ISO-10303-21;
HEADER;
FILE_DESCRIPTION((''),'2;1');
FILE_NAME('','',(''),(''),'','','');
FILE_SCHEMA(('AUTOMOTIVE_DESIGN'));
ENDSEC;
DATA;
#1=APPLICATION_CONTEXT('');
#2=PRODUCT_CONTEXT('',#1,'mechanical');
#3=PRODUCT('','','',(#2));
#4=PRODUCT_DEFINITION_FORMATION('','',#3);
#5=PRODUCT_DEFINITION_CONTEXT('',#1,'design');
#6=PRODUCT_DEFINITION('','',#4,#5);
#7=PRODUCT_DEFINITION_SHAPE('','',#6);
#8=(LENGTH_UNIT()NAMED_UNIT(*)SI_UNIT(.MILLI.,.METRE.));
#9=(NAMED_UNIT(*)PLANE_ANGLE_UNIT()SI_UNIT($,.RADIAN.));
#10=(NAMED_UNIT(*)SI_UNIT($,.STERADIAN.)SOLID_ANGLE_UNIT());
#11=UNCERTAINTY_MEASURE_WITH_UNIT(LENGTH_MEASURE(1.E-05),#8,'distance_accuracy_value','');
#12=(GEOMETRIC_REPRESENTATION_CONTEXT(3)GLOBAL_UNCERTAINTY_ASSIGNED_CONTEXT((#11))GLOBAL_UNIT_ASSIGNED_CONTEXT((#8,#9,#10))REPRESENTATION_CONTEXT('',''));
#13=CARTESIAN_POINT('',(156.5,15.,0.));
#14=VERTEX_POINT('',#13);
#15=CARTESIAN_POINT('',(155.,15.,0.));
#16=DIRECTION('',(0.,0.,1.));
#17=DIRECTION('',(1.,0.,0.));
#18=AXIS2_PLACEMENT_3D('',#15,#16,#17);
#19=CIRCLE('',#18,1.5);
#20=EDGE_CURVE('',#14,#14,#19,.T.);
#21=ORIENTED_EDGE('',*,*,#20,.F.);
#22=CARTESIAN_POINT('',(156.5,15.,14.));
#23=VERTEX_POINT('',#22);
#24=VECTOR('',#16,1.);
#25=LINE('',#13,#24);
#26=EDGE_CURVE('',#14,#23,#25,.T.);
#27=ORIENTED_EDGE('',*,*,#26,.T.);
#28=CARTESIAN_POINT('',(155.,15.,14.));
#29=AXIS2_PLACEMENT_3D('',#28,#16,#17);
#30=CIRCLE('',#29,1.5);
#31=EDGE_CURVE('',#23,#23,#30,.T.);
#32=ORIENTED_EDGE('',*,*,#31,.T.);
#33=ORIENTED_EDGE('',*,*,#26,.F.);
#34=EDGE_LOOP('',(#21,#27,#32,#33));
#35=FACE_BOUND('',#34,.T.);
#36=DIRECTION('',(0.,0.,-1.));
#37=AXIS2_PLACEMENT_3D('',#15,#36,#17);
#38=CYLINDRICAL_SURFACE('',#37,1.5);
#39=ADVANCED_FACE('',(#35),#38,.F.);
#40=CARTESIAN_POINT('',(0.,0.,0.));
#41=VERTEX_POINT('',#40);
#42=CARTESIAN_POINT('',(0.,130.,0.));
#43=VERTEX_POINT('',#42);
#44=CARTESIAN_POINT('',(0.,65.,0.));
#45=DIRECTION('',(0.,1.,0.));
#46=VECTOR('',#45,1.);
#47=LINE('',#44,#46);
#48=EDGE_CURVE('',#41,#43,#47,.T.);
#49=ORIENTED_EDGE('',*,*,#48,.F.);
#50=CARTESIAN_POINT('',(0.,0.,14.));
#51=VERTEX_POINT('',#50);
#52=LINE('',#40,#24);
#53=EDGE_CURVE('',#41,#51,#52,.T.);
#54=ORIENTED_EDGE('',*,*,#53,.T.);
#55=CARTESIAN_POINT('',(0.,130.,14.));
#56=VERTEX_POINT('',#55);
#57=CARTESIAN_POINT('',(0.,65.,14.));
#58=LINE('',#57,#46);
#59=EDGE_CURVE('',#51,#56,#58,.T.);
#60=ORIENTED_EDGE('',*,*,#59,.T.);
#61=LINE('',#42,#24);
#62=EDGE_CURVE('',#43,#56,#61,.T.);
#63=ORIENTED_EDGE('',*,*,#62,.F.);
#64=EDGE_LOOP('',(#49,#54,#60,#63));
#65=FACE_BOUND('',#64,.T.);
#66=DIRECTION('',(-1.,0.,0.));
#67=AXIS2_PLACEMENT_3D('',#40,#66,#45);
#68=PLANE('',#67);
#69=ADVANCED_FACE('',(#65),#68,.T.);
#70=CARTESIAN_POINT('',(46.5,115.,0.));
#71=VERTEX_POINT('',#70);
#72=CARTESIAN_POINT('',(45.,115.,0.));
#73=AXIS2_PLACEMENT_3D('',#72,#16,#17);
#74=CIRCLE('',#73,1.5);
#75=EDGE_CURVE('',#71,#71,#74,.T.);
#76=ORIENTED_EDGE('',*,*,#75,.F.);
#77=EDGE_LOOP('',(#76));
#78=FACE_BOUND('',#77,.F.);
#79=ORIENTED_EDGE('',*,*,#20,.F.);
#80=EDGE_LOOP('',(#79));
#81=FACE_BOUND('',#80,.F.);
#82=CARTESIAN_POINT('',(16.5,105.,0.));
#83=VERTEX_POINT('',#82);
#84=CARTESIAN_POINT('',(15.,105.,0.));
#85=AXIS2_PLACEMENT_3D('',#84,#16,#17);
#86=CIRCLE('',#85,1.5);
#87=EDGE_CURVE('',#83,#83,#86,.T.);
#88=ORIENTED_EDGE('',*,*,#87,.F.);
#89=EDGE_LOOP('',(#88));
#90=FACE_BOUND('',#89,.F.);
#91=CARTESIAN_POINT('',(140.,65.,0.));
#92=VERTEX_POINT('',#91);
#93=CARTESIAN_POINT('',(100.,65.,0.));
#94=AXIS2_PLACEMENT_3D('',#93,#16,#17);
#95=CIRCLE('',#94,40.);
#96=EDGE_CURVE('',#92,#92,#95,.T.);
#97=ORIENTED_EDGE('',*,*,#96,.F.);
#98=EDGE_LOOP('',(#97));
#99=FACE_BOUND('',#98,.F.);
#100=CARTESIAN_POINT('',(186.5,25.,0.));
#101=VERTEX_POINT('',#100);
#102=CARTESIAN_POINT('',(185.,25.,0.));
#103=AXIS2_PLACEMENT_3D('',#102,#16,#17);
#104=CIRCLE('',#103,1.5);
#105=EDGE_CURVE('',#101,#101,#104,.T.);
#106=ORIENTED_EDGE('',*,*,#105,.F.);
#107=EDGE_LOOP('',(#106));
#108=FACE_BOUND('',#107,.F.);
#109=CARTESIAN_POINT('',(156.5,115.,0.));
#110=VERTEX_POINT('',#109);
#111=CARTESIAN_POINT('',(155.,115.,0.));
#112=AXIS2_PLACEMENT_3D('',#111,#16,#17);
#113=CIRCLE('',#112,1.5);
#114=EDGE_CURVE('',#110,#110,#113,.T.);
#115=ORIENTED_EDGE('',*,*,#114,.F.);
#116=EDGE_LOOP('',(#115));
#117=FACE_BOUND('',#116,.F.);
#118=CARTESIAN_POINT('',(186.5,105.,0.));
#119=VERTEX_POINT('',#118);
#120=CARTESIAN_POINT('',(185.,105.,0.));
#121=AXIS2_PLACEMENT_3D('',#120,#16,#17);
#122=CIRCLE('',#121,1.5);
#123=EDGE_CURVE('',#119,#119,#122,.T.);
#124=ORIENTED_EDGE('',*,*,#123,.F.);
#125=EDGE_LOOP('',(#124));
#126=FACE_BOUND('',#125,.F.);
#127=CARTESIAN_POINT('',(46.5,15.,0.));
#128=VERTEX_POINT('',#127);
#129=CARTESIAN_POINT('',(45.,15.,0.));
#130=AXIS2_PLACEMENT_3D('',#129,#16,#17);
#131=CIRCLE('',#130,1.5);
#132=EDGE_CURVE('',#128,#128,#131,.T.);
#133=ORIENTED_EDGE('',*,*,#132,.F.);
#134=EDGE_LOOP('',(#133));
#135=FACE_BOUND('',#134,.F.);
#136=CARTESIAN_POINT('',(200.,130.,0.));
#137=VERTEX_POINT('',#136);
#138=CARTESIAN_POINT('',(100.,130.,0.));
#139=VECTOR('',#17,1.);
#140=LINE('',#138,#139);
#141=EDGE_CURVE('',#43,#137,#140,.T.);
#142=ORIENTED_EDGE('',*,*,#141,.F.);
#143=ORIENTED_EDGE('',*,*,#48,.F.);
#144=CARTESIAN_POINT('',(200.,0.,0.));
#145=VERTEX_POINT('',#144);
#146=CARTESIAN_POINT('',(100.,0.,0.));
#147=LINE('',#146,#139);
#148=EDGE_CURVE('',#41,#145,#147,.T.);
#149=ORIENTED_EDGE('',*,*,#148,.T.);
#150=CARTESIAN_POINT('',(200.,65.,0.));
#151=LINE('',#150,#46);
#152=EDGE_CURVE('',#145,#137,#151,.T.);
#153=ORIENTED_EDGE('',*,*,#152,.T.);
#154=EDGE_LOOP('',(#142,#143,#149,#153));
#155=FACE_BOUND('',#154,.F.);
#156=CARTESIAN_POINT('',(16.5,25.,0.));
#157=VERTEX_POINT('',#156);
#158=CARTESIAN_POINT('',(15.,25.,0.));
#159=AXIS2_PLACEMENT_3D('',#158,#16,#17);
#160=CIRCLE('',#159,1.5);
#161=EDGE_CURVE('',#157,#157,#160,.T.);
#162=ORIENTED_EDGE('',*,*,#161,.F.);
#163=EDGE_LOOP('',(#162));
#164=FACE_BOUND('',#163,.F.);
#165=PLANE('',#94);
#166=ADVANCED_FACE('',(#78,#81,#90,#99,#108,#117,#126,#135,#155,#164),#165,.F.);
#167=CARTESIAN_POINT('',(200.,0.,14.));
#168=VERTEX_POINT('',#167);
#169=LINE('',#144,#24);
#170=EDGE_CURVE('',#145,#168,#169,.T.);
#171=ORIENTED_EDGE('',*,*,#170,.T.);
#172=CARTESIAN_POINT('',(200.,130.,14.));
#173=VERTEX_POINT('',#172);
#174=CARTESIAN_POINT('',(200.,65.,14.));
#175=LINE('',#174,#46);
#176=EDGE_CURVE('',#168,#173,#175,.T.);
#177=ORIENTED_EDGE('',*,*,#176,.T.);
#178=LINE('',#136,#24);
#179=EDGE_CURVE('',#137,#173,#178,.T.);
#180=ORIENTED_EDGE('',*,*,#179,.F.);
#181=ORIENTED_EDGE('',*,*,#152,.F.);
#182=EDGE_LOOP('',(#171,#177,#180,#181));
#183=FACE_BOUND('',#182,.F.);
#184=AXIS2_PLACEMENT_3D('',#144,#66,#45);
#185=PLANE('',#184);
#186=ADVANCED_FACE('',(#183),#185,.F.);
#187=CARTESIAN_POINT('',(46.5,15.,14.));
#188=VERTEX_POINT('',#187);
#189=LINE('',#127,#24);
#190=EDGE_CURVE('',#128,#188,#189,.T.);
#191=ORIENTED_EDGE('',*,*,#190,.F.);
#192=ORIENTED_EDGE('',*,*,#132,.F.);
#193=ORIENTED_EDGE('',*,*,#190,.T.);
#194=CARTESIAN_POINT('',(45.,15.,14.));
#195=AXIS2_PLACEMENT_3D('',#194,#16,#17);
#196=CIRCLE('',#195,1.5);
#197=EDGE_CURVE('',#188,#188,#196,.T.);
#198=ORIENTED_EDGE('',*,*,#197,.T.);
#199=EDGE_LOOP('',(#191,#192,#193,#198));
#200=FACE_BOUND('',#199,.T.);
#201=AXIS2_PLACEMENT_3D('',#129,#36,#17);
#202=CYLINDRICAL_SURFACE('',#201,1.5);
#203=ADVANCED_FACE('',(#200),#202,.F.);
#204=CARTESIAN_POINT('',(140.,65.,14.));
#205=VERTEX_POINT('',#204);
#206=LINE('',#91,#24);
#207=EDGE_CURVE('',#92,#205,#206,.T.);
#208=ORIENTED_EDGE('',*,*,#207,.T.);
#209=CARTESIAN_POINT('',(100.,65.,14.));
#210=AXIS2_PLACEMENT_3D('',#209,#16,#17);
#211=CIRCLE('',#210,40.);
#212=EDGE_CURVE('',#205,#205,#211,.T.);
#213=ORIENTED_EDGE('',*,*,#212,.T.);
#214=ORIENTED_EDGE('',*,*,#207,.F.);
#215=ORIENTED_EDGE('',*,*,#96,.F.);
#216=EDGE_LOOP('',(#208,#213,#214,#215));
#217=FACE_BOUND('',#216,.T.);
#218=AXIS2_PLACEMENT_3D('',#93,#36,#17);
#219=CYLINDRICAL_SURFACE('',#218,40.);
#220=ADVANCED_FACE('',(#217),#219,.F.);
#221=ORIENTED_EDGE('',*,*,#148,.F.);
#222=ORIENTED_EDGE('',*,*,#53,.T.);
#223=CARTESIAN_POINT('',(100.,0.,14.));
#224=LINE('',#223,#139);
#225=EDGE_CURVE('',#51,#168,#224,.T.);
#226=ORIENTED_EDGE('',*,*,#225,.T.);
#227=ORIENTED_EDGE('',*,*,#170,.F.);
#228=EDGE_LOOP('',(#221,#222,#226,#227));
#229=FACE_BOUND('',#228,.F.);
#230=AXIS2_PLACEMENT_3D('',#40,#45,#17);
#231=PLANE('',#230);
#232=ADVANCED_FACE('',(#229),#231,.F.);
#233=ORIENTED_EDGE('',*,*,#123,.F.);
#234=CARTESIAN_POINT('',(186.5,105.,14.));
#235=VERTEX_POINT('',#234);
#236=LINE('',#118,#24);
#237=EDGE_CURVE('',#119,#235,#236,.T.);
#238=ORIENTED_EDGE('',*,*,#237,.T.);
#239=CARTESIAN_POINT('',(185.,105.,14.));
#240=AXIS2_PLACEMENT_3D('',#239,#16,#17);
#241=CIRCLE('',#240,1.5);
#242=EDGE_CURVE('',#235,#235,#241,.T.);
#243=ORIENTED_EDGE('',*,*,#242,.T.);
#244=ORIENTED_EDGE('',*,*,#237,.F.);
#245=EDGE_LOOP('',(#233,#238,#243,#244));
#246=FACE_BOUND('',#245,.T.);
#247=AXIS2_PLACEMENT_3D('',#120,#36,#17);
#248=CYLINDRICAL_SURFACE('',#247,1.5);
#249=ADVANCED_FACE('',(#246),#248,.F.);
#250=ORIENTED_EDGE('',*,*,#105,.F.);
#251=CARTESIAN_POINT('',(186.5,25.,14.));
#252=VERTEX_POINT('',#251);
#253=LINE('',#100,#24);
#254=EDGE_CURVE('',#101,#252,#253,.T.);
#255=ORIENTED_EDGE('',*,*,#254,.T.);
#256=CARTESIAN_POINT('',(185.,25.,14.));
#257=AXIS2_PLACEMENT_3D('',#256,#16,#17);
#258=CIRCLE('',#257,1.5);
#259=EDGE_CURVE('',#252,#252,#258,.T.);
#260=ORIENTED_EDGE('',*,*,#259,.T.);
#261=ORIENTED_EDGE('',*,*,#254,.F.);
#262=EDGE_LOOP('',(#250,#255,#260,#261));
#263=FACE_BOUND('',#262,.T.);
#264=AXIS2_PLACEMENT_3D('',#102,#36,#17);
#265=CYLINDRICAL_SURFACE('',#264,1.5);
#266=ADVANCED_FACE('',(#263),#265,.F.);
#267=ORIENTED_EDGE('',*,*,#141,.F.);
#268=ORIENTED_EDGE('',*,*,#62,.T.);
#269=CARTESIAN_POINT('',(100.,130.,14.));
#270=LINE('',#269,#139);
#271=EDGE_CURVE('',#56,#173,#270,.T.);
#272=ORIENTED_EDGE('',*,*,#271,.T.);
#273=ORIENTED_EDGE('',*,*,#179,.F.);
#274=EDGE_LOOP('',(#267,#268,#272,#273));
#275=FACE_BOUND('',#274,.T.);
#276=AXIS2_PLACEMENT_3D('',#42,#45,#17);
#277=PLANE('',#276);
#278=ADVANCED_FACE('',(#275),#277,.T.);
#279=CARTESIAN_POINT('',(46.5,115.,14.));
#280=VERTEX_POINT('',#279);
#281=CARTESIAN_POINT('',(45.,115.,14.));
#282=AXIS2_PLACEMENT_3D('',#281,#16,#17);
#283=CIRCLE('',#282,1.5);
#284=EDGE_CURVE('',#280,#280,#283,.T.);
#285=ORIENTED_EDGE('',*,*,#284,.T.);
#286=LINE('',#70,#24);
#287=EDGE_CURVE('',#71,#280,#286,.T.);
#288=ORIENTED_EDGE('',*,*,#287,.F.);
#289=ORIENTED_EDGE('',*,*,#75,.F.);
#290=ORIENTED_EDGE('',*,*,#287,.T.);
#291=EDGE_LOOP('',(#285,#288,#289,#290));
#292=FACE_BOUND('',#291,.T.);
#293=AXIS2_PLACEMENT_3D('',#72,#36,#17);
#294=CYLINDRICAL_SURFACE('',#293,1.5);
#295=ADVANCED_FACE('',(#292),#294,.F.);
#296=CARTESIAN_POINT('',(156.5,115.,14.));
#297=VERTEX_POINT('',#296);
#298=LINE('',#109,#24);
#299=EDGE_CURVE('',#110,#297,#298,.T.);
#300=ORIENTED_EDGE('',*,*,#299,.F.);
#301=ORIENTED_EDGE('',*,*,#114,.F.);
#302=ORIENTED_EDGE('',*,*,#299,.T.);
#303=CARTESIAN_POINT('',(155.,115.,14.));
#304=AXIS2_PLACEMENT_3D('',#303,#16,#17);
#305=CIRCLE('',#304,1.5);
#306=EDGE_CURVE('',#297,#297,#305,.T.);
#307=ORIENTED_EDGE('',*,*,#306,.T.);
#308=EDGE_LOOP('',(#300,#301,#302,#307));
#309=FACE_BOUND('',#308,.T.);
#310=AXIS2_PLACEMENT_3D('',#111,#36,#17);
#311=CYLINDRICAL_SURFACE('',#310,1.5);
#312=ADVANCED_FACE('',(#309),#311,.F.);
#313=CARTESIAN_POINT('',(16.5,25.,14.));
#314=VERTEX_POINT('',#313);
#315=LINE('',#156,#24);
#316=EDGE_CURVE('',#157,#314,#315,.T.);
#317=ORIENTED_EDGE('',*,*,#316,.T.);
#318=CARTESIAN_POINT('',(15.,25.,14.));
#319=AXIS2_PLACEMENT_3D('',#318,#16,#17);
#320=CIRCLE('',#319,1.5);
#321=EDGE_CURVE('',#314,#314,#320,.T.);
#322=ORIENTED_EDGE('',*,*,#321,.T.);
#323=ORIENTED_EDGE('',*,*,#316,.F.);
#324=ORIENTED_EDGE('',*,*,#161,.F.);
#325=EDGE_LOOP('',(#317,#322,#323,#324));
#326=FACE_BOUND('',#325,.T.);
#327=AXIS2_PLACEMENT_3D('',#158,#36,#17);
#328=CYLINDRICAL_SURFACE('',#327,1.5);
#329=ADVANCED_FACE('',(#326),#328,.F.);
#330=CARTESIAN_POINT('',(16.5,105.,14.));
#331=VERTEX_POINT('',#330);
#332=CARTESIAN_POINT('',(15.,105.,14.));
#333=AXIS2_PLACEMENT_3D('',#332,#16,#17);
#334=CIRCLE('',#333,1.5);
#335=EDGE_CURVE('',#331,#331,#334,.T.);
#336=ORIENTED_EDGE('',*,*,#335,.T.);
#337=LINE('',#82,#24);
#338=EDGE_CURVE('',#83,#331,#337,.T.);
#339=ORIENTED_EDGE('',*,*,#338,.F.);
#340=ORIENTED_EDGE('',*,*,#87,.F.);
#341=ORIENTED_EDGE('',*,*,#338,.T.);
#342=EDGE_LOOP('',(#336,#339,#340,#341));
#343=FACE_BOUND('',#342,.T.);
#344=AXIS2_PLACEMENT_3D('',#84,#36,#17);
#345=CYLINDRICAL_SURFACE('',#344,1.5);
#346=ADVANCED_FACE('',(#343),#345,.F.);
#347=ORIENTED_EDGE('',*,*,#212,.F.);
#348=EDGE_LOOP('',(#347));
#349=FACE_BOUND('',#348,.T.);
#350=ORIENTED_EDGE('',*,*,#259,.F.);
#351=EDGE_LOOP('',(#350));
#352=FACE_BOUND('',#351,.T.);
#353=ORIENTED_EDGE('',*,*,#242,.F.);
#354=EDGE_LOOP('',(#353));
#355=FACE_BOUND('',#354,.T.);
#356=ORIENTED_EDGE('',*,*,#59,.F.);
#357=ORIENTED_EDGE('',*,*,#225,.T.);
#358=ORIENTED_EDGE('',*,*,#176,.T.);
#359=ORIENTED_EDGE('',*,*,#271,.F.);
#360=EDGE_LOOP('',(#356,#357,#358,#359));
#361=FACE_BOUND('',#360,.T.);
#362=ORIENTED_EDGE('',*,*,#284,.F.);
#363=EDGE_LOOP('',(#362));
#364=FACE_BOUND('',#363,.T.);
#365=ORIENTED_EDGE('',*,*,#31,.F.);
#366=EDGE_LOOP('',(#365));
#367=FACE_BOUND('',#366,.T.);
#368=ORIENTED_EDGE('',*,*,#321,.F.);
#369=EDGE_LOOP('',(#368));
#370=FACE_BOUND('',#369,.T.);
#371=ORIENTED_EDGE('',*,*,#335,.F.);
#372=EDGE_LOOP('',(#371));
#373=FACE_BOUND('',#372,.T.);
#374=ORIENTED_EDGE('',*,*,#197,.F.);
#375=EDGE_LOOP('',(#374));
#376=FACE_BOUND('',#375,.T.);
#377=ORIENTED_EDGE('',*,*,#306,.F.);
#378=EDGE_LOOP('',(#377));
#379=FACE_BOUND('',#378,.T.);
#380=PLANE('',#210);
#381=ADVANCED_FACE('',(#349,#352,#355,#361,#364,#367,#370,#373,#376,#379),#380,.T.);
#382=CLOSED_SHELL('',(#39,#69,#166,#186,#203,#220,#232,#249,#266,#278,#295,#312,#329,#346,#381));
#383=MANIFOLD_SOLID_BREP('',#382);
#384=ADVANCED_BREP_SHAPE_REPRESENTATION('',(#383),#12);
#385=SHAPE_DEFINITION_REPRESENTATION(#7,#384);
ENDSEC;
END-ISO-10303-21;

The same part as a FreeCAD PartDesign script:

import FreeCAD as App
import Part
import Sketcher
from FreeCAD import Vector
Q = App.Units.Quantity


def add_polygon(sketch, points):
    """Adds a closed chain of lines whose ends are joined by coincident constraints."""
    first, n = sketch.GeometryCount, len(points)
    for a, b in zip(points, points[1:] + points[:1]):
        sketch.addGeometry(Part.LineSegment(App.Vector(*a, 0), App.Vector(*b, 0)), False)
    for i in range(n):
        sketch.addConstraint(Sketcher.Constraint("Coincident", first + i, 2, first + (i + 1) % n, 1))

doc = App.newDocument("Part")
body = doc.addObject("PartDesign::Body", "Body")

# Sketch on XY plane
sketch1 = body.newObject("Sketcher::SketchObject", "Sketch")
sketch1.AttachmentSupport = (doc.getObject("XY_Plane"), [""])
sketch1.MapMode = "FlatFace"
add_polygon(sketch1, [(0, 130), (0, 0), (200, 0), (200, 130)])  # lines 0-3
sketch1.addGeometry(Part.Circle(Vector(15, 25, 0), Vector(0, 0, 1), 1.5), False)  # 4
sketch1.addGeometry(Part.Circle(Vector(45, 15, 0), Vector(0, 0, 1), 1.5), False)  # 5
sketch1.addGeometry(Part.Circle(Vector(155, 15, 0), Vector(0, 0, 1), 1.5), False)  # 6
sketch1.addGeometry(Part.Circle(Vector(185, 25, 0), Vector(0, 0, 1), 1.5), False)  # 7
sketch1.addGeometry(Part.Circle(Vector(100, 65, 0), Vector(0, 0, 1), 40), False)  # 8
sketch1.addGeometry(Part.Circle(Vector(15, 105, 0), Vector(0, 0, 1), 1.5), False)  # 9
sketch1.addGeometry(Part.Circle(Vector(45, 115, 0), Vector(0, 0, 1), 1.5), False)  # 10
sketch1.addGeometry(Part.Circle(Vector(155, 115, 0), Vector(0, 0, 1), 1.5), False)  # 11
sketch1.addGeometry(Part.Circle(Vector(185, 105, 0), Vector(0, 0, 1), 1.5), False)  # 12
sketch1.addConstraint(Sketcher.Constraint("Vertical", 0))
sketch1.addConstraint(Sketcher.Constraint("Horizontal", 1))
sketch1.addConstraint(Sketcher.Constraint("Vertical", 2))
sketch1.addConstraint(Sketcher.Constraint("Horizontal", 3))
sketch1.addConstraint(Sketcher.Constraint("Coincident", 0, 2, -1, 1))
sketch1.addConstraint(Sketcher.Constraint("Equal", 4, 5))
sketch1.addConstraint(Sketcher.Constraint("Equal", 5, 6))
sketch1.addConstraint(Sketcher.Constraint("Equal", 6, 7))
sketch1.addConstraint(Sketcher.Constraint("Equal", 7, 9))
sketch1.addConstraint(Sketcher.Constraint("Equal", 9, 10))
sketch1.addConstraint(Sketcher.Constraint("Equal", 10, 11))
sketch1.addConstraint(Sketcher.Constraint("Equal", 11, 12))
sketch1.addConstraint(Sketcher.Constraint("Horizontal", 5, 3, 6, 3))
sketch1.addConstraint(Sketcher.Constraint("Horizontal", 4, 3, 7, 3))
sketch1.addConstraint(Sketcher.Constraint("Horizontal", 10, 3, 11, 3))
sketch1.addConstraint(Sketcher.Constraint("Horizontal", 9, 3, 12, 3))
sketch1.addConstraint(Sketcher.Constraint("Vertical", 4, 3, 9, 3))
sketch1.addConstraint(Sketcher.Constraint("Vertical", 5, 3, 10, 3))
sketch1.addConstraint(Sketcher.Constraint("Vertical", 6, 3, 11, 3))
sketch1.addConstraint(Sketcher.Constraint("Vertical", 7, 3, 12, 3))
sketch1.addConstraint(Sketcher.Constraint("Diameter", 4, Q("3 mm")))
sketch1.addConstraint(Sketcher.Constraint("Diameter", 8, Q("80 mm")))
sketch1.addConstraint(Sketcher.Constraint("DistanceX", 1, 1, 1, 2, Q("200 mm")))
sketch1.addConstraint(Sketcher.Constraint("DistanceY", 0, 2, 0, 1, Q("130 mm")))
sketch1.addConstraint(Sketcher.Constraint("DistanceX", -1, 1, 4, 3, Q("15 mm")))
sketch1.addConstraint(Sketcher.Constraint("DistanceY", -1, 1, 4, 3, Q("25 mm")))
sketch1.addConstraint(Sketcher.Constraint("DistanceX", -1, 1, 5, 3, Q("45 mm")))
sketch1.addConstraint(Sketcher.Constraint("DistanceY", -1, 1, 5, 3, Q("15 mm")))
sketch1.addConstraint(Sketcher.Constraint("DistanceX", -1, 1, 6, 3, Q("155 mm")))
sketch1.addConstraint(Sketcher.Constraint("DistanceX", -1, 1, 7, 3, Q("185 mm")))
sketch1.addConstraint(Sketcher.Constraint("DistanceX", -1, 1, 8, 3, Q("100 mm")))
sketch1.addConstraint(Sketcher.Constraint("DistanceY", -1, 1, 8, 3, Q("65 mm")))
sketch1.addConstraint(Sketcher.Constraint("DistanceY", -1, 1, 9, 3, Q("105 mm")))
sketch1.addConstraint(Sketcher.Constraint("DistanceY", -1, 1, 10, 3, Q("115 mm")))
pad1 = body.newObject("PartDesign::Pad", "Pad")
pad1.Profile = sketch1
pad1.Length = 14

doc.recompute()
